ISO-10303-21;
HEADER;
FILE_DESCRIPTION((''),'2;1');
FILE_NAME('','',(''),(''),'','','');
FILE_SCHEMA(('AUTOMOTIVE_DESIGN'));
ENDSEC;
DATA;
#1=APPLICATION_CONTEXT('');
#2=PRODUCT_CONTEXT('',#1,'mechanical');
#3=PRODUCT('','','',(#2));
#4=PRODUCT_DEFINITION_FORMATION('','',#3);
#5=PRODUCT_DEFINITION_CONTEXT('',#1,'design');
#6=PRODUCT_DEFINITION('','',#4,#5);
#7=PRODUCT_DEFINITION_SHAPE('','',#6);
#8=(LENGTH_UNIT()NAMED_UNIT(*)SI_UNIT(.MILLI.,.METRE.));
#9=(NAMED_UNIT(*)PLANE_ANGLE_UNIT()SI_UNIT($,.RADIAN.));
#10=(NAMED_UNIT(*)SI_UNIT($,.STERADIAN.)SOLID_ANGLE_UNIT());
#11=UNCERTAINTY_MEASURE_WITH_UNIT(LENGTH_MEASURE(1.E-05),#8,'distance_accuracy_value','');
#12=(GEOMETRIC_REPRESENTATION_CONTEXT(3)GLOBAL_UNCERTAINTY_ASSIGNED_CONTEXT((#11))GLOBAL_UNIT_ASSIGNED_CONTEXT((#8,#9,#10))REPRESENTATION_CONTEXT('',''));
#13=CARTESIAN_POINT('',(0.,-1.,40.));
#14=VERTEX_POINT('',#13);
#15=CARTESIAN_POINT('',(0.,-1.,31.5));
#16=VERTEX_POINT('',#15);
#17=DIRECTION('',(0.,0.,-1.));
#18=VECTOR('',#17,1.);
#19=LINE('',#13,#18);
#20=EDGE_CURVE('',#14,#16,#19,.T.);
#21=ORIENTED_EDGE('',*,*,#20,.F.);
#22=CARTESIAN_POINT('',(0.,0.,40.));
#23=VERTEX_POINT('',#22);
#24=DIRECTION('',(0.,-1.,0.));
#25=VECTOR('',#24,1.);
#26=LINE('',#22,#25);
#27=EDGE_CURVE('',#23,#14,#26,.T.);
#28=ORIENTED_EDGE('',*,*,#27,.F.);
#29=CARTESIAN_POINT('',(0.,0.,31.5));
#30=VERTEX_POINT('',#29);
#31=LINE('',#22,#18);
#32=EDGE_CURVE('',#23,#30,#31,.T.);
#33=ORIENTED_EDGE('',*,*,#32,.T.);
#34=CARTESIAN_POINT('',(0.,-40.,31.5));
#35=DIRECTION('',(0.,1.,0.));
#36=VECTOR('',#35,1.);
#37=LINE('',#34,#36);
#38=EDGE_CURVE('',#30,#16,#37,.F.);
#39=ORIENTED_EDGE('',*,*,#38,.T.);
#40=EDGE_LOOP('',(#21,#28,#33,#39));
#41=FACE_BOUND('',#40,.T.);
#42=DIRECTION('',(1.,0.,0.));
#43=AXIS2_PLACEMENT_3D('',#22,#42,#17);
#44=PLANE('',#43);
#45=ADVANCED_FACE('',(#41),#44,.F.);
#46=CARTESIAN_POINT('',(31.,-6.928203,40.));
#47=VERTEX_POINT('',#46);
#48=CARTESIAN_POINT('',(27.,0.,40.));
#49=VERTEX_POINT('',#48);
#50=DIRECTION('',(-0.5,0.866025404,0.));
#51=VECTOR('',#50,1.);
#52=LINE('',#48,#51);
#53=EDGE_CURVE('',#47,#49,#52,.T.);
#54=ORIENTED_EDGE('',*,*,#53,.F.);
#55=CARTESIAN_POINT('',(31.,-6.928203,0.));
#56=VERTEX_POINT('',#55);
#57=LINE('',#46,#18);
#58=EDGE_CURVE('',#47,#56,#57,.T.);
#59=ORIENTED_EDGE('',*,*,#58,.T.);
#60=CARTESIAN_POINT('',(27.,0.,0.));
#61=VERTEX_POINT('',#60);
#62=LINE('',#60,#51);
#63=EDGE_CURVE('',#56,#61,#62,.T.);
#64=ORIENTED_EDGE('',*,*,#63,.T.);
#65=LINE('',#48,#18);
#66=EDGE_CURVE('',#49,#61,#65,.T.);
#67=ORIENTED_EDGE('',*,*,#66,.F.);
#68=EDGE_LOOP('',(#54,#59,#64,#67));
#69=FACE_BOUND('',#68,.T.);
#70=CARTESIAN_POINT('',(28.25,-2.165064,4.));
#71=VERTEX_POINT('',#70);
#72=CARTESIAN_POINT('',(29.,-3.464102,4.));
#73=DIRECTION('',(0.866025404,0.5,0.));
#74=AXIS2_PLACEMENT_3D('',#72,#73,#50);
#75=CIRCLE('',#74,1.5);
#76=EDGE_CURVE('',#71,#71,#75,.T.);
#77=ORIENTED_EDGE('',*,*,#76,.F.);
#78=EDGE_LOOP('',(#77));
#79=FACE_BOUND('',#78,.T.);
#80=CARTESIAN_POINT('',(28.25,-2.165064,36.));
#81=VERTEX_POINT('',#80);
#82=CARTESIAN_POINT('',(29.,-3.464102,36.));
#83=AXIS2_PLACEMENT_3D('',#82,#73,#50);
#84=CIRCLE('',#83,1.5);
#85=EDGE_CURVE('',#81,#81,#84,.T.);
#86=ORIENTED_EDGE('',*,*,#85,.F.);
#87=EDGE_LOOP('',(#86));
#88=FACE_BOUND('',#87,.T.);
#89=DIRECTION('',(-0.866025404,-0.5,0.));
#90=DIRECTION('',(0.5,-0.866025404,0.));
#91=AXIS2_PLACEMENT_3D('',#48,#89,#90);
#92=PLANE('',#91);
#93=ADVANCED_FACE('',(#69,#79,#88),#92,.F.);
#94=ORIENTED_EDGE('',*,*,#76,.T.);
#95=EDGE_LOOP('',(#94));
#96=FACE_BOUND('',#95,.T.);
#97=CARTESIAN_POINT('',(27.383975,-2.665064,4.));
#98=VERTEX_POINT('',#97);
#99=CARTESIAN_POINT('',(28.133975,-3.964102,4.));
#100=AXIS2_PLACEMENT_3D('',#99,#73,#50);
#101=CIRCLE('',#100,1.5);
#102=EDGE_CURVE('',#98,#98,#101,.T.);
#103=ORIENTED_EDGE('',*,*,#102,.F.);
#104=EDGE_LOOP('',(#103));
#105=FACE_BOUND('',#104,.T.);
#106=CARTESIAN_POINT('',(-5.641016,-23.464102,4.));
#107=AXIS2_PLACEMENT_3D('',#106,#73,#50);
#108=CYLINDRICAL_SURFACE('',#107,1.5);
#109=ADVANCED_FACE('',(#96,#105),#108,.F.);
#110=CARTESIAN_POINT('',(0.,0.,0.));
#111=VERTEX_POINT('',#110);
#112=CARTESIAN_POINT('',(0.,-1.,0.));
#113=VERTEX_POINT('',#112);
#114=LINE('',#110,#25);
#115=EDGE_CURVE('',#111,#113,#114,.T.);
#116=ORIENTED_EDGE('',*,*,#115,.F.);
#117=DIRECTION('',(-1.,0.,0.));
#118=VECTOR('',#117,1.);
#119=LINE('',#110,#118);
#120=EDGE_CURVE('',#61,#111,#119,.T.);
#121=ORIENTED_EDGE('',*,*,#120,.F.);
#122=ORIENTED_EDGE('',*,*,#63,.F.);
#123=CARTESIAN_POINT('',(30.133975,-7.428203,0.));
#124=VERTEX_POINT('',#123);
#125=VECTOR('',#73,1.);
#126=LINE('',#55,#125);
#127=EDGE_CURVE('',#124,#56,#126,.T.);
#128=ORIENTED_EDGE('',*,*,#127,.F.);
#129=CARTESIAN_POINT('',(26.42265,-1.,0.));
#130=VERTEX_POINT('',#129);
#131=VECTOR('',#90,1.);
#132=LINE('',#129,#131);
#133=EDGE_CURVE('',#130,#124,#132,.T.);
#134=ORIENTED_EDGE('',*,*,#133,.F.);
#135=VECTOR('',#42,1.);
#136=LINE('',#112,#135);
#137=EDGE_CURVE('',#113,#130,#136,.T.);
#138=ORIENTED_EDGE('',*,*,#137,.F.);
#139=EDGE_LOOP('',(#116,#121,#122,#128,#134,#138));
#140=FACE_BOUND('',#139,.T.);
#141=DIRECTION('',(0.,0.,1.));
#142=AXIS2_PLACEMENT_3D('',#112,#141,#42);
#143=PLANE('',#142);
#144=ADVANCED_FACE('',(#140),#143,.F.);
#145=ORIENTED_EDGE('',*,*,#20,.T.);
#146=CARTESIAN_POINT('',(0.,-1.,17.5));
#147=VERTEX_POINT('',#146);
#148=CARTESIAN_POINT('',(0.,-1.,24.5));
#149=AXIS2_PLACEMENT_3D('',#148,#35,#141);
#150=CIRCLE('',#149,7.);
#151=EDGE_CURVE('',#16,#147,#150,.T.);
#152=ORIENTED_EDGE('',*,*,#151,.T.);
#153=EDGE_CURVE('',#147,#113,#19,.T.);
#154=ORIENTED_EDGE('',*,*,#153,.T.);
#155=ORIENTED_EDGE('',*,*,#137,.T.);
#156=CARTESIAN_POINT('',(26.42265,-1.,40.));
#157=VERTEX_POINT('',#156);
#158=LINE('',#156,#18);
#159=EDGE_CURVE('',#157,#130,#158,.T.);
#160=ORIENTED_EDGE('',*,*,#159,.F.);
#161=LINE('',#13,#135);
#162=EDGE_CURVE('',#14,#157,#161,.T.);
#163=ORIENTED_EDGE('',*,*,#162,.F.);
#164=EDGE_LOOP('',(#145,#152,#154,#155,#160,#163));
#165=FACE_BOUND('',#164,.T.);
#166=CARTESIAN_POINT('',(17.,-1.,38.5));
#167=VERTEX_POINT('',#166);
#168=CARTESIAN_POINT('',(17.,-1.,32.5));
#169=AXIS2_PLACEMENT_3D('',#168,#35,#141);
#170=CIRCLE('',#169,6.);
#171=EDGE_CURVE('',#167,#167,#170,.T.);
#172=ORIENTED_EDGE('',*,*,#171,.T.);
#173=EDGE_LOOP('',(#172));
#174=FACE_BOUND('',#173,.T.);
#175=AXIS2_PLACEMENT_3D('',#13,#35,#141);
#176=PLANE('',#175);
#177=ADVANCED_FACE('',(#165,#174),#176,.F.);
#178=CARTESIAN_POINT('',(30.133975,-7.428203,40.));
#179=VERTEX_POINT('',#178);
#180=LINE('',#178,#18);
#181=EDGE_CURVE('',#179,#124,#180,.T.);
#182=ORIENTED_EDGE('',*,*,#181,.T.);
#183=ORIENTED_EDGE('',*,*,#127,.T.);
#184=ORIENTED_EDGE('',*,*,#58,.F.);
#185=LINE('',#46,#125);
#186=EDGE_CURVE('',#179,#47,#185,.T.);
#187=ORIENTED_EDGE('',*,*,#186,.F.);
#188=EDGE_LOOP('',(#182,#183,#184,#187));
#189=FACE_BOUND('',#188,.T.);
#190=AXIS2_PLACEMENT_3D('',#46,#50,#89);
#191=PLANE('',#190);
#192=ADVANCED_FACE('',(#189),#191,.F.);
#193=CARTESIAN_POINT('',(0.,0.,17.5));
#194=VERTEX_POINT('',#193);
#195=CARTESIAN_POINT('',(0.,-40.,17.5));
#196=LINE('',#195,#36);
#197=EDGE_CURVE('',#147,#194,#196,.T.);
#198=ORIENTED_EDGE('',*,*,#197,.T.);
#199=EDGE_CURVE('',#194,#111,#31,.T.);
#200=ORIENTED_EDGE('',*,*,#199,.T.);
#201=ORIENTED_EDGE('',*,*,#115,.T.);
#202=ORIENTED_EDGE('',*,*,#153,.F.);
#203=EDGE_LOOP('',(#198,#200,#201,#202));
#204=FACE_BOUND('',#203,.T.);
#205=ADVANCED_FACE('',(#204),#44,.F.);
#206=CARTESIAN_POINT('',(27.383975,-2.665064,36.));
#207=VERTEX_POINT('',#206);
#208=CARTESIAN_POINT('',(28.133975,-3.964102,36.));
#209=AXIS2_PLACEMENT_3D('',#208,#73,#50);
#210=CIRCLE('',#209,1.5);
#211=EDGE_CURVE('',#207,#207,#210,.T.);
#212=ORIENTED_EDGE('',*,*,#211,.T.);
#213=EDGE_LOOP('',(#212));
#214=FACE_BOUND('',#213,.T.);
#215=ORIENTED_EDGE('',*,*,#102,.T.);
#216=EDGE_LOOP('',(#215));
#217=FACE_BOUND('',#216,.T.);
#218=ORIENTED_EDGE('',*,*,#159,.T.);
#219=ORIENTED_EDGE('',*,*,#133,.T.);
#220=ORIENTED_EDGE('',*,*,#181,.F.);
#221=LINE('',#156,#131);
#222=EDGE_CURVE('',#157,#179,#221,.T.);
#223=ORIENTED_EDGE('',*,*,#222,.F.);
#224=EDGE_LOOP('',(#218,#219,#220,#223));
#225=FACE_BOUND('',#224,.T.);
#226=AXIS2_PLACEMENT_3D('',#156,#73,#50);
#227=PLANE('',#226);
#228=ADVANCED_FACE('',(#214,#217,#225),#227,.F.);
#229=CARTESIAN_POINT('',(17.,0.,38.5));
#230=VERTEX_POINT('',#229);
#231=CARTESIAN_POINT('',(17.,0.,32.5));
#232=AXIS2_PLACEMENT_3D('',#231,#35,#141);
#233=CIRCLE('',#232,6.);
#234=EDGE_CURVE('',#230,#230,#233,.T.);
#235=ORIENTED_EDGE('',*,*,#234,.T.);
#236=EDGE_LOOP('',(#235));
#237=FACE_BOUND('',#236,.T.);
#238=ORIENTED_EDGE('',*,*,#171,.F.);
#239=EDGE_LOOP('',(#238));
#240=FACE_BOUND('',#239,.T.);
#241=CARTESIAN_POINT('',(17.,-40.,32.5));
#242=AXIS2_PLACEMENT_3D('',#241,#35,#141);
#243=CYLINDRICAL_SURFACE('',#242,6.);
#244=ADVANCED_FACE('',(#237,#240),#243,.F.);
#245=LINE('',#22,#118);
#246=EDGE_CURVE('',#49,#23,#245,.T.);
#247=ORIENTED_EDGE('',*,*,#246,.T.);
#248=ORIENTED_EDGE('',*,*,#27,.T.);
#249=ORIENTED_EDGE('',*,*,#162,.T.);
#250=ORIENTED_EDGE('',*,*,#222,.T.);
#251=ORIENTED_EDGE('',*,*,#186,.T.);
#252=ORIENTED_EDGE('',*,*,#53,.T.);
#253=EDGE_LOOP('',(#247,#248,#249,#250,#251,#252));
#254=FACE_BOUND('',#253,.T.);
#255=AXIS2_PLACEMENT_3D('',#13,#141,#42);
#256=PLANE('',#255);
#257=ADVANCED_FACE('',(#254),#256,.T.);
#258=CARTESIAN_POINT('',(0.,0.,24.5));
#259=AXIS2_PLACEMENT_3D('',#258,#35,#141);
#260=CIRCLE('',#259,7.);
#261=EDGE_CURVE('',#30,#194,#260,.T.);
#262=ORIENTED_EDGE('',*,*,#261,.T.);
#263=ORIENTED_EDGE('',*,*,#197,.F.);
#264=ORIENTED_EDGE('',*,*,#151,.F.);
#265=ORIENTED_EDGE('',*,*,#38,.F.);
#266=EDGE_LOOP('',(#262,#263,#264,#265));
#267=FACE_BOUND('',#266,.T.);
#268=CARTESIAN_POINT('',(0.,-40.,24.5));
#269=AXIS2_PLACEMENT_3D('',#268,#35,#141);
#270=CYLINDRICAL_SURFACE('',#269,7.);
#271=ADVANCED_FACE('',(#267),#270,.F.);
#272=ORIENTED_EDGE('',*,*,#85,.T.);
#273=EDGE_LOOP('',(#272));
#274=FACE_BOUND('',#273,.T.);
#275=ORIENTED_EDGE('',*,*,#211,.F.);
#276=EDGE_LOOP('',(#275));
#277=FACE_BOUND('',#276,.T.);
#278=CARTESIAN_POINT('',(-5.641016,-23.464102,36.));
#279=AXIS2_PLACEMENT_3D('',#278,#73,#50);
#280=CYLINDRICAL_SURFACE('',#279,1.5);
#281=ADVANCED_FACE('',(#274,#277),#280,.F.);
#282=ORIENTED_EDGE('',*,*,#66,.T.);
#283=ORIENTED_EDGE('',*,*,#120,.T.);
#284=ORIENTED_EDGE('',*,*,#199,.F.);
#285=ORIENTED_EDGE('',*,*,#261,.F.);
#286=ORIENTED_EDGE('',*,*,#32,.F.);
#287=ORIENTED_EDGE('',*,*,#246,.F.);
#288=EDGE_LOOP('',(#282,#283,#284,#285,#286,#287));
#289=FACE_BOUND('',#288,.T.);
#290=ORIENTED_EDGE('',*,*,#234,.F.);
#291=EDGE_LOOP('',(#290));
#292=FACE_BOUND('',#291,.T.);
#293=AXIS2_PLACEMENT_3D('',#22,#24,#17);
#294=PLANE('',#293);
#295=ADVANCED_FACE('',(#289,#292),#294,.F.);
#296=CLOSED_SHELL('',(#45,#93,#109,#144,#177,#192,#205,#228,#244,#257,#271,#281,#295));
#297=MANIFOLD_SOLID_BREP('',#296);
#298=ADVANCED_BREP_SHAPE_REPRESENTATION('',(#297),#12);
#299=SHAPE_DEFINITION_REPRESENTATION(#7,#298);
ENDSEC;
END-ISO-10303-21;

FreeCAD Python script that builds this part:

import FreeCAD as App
import Part
import Sketcher
Q = App.Units.Quantity

doc = App.newDocument("Part")
params = doc.addObject("Spreadsheet::Sheet", "Params")
for row, (alias, value) in enumerate([
    ("sketch1_width", "27 mm"),
    ("sketch1_height", "1 mm"),
    ("sketch1_length", "1 mm"),
    ("sketch1_length2", "8 mm"),
    ("pad1_length", "40 mm"),
    ("sketch2_diameter", "3 mm"),
    ("pocket1_length", "40 mm"),
    ("sketch3_diameter", "14 mm"),
    ("sketch3_diameter2", "12 mm"),
    ("pocket2_length", "40 mm"),
], start=1):
    params.set(f"A{row}", alias)
    params.set(f"B{row}", "=" + value)
    params.setAlias(f"B{row}", alias)

body = doc.addObject("PartDesign::Body", "Body")

sketch1 = body.newObject("Sketcher::SketchObject", "Sketch")
sketch1.AttachmentSupport = (doc.getObject("XY_Plane"), [""])
sketch1.MapMode = "FlatFace"
sketch1.addGeometry([
    Part.LineSegment(App.Vector(27, 0, 0), App.Vector(0, 0, 0)),
    Part.LineSegment(App.Vector(0, 0, 0), App.Vector(0, -1, 0)),
    Part.LineSegment(App.Vector(0, -1, 0), App.Vector(26.4, -1, 0)),
    Part.LineSegment(App.Vector(26.4, -1, 0), App.Vector(30.1, -7.4, 0)),
    Part.LineSegment(App.Vector(30.1, -7.4, 0), App.Vector(31, -6.9, 0)),
    Part.LineSegment(App.Vector(31, -6.9, 0), App.Vector(27, 0, 0)),
], False)
sketch1.addConstraint([
    Sketcher.Constraint("Coincident", 0, 2, 1, 1),
    Sketcher.Constraint("Coincident", 1, 2, 2, 1),
    Sketcher.Constraint("Coincident", 2, 2, 3, 1),
    Sketcher.Constraint("Coincident", 3, 2, 4, 1),
    Sketcher.Constraint("Coincident", 4, 2, 5, 1),
    Sketcher.Constraint("Coincident", 5, 2, 0, 1),
    Sketcher.Constraint("Horizontal", 0),
    Sketcher.Constraint("Vertical", 1),
    Sketcher.Constraint("Horizontal", 2),
    Sketcher.Constraint("Coincident", 0, 2, -1, 1),
    Sketcher.Constraint("Perpendicular", 3, 4),
    Sketcher.Constraint("Perpendicular", 4, 5),
    Sketcher.Constraint("DistanceX", 0, 2, 0, 1, 27.0),
    Sketcher.Constraint("DistanceY", 1, 2, 1, 1, 1.0),
    Sketcher.Constraint("Angle", 3, Q("-60 deg")),
    Sketcher.Constraint("Distance", 4, 1.0),
    Sketcher.Constraint("Distance", 5, 8.0),
])
sketch1.setExpression("Constraints[12]", "Params.sketch1_width")
sketch1.setExpression("Constraints[13]", "Params.sketch1_height")
sketch1.setExpression("Constraints[15]", "Params.sketch1_length")
sketch1.setExpression("Constraints[16]", "Params.sketch1_length2")
pad1 = body.newObject("PartDesign::Pad", "Pad")
pad1.Profile = sketch1
pad1.setExpression("Length", "Params.pad1_length")

sketch2 = body.newObject("Sketcher::SketchObject", "Sketch001")
sketch2.Placement = App.Placement(App.Vector(20.25, 11.691343, 0), App.Rotation(App.Vector(0, 0, -1), App.Vector(-0.5, 0.866025404, 0), App.Vector(0.866025404, 0.5, 0), "ZXY"))
sketch2.addGeometry([
    Part.Circle(App.Vector(-36, -17.5, 0), App.Vector(0, 0, 1), 1.5),
    Part.Circle(App.Vector(-4, -17.5, 0), App.Vector(0, 0, 1), 1.5),
], False)
sketch2.addConstraint([
    Sketcher.Constraint("Equal", 0, 1),
    Sketcher.Constraint("Horizontal", 0, 3, 1, 3),
    Sketcher.Constraint("Diameter", 0, 3.0),
    Sketcher.Constraint("DistanceX", 0, 3, -1, 1, 36.0),
    Sketcher.Constraint("DistanceX", 1, 3, -1, 1, 4.0),
    Sketcher.Constraint("DistanceY", 0, 3, -1, 1, 17.5),
])
sketch2.setExpression("Constraints[2]", "Params.sketch2_diameter")
pocket1 = body.newObject("PartDesign::Pocket", "Pocket")
pocket1.Profile = sketch2
pocket1.setExpression("Length", "Params.pocket1_length")

sketch3 = body.newObject("Sketcher::SketchObject", "Sketch002")
sketch3.AttachmentSupport = (doc.getObject("XZ_Plane"), [""])
sketch3.MapMode = "FlatFace"
sketch3.addGeometry([
    Part.Circle(App.Vector(0, 24, 0), App.Vector(0, 0, 1), 7),
    Part.Circle(App.Vector(17, 32, 0), App.Vector(0, 0, 1), 6),
], False)
sketch3.addConstraint([
    Sketcher.Constraint("PointOnObject", 0, 3, -2),
    Sketcher.Constraint("Diameter", 0, 14.0),
    Sketcher.Constraint("Diameter", 1, 12.0),
    Sketcher.Constraint("DistanceX", -1, 1, 1, 3, 17.0),
    Sketcher.Constraint("DistanceY", 0, 3, 1, 3, 8.0),
    Sketcher.Constraint("DistanceY", -1, 1, 0, 3, 24.5),
])
sketch3.setExpression("Constraints[1]", "Params.sketch3_diameter")
sketch3.setExpression("Constraints[2]", "Params.sketch3_diameter2")
pocket2 = body.newObject("PartDesign::Pocket", "Pocket001")
pocket2.Profile = sketch3
pocket2.setExpression("Length", "Params.pocket2_length")
pocket2.Reversed = True

doc.recompute()
